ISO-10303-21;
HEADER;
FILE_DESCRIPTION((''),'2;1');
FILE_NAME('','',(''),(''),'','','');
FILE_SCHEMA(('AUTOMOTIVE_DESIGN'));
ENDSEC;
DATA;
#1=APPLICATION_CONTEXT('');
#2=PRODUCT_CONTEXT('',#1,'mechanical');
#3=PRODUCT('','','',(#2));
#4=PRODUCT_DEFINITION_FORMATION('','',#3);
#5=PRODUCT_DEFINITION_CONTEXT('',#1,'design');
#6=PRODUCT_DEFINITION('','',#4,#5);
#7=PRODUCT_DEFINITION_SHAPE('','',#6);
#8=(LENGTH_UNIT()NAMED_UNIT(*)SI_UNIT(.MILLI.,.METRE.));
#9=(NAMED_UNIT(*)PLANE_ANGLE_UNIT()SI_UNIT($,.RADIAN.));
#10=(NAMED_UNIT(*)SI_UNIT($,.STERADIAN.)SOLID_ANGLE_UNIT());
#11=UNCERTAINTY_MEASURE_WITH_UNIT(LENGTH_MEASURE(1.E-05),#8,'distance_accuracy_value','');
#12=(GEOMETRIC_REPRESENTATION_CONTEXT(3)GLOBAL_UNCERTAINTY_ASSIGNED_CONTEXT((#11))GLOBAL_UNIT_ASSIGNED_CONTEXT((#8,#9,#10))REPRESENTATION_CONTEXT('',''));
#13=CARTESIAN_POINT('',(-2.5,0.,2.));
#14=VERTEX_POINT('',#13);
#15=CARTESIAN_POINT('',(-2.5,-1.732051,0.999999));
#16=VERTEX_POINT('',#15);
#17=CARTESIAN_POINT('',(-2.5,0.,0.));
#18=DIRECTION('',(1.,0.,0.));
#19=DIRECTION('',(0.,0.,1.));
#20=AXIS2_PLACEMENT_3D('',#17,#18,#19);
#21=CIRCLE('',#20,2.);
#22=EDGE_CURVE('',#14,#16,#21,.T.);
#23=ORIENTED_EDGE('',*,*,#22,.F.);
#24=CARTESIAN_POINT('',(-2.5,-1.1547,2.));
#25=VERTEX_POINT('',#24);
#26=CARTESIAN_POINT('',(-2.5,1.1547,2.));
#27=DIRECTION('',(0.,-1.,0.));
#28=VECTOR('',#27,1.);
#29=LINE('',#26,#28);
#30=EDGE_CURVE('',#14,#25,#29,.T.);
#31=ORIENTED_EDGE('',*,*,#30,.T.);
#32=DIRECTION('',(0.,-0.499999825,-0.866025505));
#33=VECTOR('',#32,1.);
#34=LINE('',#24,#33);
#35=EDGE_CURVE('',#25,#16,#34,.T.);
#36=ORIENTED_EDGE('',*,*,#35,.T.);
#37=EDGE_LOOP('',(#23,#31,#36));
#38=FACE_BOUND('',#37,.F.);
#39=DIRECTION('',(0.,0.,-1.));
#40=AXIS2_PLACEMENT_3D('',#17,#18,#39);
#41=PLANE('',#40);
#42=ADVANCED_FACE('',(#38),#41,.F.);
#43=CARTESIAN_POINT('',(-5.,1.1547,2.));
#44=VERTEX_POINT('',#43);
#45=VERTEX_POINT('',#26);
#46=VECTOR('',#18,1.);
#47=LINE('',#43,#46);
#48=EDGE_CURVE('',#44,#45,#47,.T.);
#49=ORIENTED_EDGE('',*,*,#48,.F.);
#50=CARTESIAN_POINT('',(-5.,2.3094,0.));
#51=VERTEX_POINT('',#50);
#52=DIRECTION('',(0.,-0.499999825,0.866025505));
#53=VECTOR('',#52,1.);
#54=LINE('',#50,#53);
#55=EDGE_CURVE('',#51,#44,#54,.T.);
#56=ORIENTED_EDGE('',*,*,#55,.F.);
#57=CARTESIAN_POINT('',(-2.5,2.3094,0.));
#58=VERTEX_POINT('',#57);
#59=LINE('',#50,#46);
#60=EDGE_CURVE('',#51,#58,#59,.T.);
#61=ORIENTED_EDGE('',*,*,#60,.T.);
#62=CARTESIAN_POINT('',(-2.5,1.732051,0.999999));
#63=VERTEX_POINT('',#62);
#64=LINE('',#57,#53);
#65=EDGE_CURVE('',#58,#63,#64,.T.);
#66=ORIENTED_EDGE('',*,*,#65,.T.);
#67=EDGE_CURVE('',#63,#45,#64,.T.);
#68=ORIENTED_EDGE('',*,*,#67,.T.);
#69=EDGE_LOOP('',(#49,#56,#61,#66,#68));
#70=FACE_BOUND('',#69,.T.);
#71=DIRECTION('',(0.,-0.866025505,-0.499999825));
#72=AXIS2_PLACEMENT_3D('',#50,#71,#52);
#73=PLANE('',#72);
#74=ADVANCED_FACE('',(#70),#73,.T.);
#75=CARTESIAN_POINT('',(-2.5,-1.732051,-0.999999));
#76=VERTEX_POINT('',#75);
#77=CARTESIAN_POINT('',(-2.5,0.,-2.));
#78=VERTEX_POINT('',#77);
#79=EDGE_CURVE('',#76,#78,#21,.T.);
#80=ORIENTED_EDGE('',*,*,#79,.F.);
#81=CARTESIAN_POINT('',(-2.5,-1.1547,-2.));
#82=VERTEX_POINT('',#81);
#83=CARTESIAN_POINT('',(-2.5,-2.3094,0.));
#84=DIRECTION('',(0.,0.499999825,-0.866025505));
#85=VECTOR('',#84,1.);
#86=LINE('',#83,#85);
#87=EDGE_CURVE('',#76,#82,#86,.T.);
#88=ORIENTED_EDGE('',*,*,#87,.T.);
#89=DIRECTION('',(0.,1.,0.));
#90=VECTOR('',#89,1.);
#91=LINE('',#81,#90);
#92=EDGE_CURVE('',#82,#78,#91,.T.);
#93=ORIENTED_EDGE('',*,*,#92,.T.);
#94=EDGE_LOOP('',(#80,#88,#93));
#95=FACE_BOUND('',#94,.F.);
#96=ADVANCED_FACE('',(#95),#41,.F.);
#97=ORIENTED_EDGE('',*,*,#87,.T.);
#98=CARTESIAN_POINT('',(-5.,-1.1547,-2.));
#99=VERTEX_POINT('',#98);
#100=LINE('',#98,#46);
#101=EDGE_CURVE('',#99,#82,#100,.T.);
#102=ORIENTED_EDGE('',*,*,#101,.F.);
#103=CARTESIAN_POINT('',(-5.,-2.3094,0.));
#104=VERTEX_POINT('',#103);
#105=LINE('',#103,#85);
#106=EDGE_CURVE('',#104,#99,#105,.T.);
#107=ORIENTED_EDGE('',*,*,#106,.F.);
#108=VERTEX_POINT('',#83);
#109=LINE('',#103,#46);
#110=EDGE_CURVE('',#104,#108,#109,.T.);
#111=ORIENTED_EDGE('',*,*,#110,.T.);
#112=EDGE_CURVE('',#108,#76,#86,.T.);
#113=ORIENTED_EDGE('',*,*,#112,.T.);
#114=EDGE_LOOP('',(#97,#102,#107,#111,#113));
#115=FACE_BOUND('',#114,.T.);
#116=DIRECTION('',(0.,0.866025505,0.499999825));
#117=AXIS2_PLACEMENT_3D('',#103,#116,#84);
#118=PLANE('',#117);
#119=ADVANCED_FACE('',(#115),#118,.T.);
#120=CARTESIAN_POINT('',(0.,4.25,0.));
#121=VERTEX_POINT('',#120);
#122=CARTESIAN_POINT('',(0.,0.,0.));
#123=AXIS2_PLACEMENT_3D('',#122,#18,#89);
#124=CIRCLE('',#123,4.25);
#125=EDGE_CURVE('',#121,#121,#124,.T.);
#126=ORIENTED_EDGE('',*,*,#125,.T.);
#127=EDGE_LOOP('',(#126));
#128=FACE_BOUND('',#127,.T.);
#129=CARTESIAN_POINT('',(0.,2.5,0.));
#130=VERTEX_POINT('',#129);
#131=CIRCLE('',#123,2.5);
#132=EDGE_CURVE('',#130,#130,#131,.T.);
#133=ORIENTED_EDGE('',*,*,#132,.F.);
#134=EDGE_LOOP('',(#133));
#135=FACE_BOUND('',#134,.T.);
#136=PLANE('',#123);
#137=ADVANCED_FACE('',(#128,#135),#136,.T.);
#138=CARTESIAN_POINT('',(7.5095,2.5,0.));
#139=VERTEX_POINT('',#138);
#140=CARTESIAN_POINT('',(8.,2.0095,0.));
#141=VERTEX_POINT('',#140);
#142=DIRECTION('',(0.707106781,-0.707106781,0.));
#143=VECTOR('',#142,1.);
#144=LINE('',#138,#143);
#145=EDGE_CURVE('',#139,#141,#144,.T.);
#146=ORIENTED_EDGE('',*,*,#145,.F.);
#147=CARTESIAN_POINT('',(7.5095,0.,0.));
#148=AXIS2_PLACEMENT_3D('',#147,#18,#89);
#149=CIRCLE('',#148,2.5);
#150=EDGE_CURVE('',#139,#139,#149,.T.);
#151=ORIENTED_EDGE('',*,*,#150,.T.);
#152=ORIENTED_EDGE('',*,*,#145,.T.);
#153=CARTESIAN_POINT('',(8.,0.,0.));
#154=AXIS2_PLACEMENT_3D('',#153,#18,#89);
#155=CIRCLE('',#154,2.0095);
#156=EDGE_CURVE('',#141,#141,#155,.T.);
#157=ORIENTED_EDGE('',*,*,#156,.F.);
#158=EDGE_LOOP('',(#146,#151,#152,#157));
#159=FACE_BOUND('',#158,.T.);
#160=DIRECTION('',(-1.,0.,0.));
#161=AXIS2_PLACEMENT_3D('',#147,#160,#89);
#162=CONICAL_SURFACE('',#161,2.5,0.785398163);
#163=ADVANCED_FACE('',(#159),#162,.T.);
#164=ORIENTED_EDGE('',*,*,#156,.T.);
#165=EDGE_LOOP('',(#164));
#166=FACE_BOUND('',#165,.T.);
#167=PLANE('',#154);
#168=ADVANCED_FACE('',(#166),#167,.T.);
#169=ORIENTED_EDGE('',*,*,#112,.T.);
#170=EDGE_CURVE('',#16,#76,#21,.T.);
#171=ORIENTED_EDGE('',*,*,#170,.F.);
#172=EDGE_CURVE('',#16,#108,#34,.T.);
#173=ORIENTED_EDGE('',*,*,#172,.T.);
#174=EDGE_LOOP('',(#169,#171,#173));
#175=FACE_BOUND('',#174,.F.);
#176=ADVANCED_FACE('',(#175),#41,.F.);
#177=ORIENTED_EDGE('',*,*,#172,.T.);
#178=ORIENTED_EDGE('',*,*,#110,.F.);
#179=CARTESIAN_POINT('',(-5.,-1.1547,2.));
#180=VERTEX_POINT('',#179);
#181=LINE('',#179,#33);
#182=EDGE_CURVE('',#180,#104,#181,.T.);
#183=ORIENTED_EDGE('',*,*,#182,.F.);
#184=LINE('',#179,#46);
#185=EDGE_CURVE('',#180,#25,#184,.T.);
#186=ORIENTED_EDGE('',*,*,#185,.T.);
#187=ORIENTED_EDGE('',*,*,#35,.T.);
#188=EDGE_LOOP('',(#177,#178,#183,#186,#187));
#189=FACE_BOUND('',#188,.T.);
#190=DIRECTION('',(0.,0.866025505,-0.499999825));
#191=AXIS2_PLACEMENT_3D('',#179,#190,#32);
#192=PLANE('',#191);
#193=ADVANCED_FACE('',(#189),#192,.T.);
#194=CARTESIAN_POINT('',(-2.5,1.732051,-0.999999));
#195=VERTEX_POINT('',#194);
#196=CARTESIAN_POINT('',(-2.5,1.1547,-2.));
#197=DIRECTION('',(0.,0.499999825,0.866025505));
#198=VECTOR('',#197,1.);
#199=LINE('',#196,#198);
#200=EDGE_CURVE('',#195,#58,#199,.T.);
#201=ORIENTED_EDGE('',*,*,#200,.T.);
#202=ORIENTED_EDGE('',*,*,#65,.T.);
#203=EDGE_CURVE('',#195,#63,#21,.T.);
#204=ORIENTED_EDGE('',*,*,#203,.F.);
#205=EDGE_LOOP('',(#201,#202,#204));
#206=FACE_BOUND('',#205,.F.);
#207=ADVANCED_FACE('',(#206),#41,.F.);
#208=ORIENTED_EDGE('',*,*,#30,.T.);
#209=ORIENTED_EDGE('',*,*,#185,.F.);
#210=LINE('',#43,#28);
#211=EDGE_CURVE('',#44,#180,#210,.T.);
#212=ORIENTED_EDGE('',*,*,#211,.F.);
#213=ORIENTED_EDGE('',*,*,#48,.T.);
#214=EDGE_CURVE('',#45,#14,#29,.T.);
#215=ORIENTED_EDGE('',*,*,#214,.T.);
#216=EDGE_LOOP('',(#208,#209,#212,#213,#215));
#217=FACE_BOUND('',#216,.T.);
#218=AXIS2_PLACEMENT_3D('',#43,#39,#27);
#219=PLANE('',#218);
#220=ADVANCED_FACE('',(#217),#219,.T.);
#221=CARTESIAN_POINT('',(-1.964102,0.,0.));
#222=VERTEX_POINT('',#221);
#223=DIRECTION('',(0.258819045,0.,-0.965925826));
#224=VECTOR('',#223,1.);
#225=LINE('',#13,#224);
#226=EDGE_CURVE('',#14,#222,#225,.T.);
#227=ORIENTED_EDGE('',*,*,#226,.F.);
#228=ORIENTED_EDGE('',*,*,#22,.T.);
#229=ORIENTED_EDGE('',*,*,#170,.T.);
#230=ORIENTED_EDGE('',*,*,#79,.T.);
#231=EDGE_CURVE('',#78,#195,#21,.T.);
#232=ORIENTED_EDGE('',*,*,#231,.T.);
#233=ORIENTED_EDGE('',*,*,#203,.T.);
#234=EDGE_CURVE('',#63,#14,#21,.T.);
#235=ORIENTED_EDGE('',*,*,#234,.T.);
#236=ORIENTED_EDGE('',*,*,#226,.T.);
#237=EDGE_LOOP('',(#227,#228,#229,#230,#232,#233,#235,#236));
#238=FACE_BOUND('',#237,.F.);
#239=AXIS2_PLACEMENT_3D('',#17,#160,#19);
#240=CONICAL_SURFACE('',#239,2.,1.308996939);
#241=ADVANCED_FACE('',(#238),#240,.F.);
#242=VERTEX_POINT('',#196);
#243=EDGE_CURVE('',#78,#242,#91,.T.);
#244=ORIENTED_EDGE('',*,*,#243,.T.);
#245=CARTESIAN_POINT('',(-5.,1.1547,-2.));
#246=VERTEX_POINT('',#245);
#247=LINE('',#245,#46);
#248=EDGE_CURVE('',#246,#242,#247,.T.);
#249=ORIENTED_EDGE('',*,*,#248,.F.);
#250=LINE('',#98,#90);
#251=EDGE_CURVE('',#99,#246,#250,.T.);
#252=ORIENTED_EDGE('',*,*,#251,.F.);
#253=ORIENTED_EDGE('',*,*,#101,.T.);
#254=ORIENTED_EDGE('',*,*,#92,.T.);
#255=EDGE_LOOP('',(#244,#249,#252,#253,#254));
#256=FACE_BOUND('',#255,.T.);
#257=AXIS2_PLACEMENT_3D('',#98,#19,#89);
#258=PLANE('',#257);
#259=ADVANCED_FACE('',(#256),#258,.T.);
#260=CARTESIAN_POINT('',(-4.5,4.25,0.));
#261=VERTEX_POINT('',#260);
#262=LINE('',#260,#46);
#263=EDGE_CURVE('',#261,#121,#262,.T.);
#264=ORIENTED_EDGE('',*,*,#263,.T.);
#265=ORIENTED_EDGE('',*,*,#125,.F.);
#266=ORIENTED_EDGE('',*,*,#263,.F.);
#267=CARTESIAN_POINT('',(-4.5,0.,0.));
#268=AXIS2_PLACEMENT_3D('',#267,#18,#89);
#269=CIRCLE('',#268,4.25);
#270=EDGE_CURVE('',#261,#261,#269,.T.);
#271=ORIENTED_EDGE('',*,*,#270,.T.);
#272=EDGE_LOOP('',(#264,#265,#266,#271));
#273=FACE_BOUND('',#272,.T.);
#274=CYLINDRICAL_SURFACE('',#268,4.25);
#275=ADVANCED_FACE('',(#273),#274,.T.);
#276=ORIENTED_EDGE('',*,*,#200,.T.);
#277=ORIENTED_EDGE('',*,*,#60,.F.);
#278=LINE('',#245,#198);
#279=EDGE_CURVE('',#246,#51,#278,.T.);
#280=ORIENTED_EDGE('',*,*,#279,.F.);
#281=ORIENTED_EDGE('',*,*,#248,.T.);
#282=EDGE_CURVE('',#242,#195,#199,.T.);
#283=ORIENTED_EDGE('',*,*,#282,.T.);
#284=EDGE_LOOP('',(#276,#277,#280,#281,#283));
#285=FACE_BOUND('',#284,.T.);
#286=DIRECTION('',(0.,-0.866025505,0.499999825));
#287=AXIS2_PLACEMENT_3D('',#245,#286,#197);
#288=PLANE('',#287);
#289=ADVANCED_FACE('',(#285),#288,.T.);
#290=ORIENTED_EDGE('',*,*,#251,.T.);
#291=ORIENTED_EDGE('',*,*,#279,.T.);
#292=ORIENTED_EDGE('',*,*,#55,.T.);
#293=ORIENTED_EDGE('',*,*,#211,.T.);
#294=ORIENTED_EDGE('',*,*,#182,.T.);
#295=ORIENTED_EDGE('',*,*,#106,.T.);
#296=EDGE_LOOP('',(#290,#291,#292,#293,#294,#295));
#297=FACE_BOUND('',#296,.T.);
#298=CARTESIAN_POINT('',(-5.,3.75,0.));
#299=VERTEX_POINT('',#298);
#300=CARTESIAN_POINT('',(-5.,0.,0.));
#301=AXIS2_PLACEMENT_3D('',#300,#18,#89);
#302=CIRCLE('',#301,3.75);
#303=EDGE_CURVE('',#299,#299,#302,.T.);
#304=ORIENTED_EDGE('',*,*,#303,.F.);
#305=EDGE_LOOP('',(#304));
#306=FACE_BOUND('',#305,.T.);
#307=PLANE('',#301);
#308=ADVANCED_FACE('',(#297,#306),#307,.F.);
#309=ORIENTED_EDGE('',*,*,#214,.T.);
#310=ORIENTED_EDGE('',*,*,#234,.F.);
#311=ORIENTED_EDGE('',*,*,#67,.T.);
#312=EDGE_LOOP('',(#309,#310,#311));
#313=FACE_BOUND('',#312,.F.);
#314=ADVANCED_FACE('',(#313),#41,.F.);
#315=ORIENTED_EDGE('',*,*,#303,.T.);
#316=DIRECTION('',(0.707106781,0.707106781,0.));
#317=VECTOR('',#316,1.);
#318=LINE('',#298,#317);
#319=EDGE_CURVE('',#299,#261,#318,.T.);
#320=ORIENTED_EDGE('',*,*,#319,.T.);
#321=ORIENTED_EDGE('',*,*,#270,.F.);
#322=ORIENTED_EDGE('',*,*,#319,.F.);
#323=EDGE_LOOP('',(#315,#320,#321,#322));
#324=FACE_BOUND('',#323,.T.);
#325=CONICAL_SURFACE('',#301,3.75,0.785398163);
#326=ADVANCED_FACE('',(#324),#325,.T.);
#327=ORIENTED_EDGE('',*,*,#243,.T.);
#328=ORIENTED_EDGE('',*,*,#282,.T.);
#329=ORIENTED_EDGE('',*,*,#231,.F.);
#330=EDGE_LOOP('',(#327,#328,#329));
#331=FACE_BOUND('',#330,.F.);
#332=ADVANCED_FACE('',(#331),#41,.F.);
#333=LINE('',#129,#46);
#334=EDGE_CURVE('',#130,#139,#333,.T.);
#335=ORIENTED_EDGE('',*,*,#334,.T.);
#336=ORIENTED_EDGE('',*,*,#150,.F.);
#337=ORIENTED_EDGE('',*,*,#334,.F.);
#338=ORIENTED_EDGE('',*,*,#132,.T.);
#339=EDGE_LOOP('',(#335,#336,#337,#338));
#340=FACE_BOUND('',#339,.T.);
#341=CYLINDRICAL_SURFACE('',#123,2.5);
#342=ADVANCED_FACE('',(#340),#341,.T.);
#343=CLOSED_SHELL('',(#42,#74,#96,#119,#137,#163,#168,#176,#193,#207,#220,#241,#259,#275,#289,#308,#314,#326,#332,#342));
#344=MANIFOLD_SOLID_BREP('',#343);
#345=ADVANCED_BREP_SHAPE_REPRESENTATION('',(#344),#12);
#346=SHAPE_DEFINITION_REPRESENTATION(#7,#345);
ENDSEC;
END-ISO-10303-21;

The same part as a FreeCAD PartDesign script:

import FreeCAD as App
import Part
import Sketcher
Q = App.Units.Quantity

doc = App.newDocument("Part")
body = doc.addObject("PartDesign::Body", "Body")

# Sketch on XY plane
sketch1 = body.newObject("Sketcher::SketchObject", "Sketch")
sketch1.AttachmentSupport = (doc.getObject("XY_Plane"), [""])
sketch1.MapMode = "FlatFace"
sketch1.addGeometry([
    Part.LineSegment(App.Vector(-5, 0, 0), App.Vector(8, 0, 0)),  # 0
    Part.LineSegment(App.Vector(8, 0, 0), App.Vector(8, 2.0095, 0)),  # 1
    Part.LineSegment(App.Vector(8, 2.0095, 0), App.Vector(7.5095, 2.5, 0)),  # 2
    Part.LineSegment(App.Vector(7.5095, 2.5, 0), App.Vector(0, 2.5, 0)),  # 3
    Part.LineSegment(App.Vector(0, 2.5, 0), App.Vector(0, 4.25, 0)),  # 4
    Part.LineSegment(App.Vector(0, 4.25, 0), App.Vector(-4.5, 4.25, 0)),  # 5
    Part.LineSegment(App.Vector(-4.5, 4.25, 0), App.Vector(-5, 3.75, 0)),  # 6
    Part.LineSegment(App.Vector(-5, 3.75, 0), App.Vector(-5, 0, 0)),  # 7
], False)
sketch1.addConstraint([
    Sketcher.Constraint("Coincident", 0, 2, 1, 1),
    Sketcher.Constraint("Coincident", 1, 2, 2, 1),
    Sketcher.Constraint("Coincident", 2, 2, 3, 1),
    Sketcher.Constraint("Coincident", 3, 2, 4, 1),
    Sketcher.Constraint("Coincident", 4, 2, 5, 1),
    Sketcher.Constraint("Coincident", 5, 2, 6, 1),
    Sketcher.Constraint("Coincident", 6, 2, 7, 1),
    Sketcher.Constraint("Coincident", 7, 2, 0, 1),
    Sketcher.Constraint("Horizontal", 0),
    Sketcher.Constraint("Vertical", 1),
    Sketcher.Constraint("Horizontal", 3),
    Sketcher.Constraint("Vertical", 4),
    Sketcher.Constraint("Horizontal", 5),
    Sketcher.Constraint("Vertical", 7),
    Sketcher.Constraint("PointOnObject", 0, 2, -1),
    Sketcher.Constraint("PointOnObject", 3, 2, -2),
    Sketcher.Constraint("Perpendicular", 2, 6),
    Sketcher.Constraint("DistanceX", 0, 1, 0, 2, Q("13 mm")),
    Sketcher.Constraint("Angle", 2, Q("135 deg")),
    Sketcher.Constraint("DistanceX", 5, 2, 5, 1, Q("4.5 mm")),
    Sketcher.Constraint("DistanceX", -1, 1, 0, 2, Q("8 mm")),
    Sketcher.Constraint("DistanceY", 4, 1, 4, 2, Q("1.75 mm")),
    Sketcher.Constraint("DistanceY", 7, 2, 7, 1, Q("3.75 mm")),
    Sketcher.Constraint("DistanceX", 3, 2, 3, 1, Q("7.5095 mm")),
])
revolution = body.newObject("PartDesign::Revolution", "Revolution")
revolution.Profile = sketch1
revolution.ReferenceAxis = (sketch1, ["H_Axis"])
revolution.Angle = 360

# Sketch on YZ plane
sketch2 = body.newObject("Sketcher::SketchObject", "Sketch001")
sketch2.AttachmentSupport = (doc.getObject("YZ_Plane"), [""])
sketch2.MapMode = "FlatFace"
sketch2.AttachmentOffset = App.Placement(App.Vector(0, 0, -5), App.Rotation())
sketch2.addGeometry(Part.Circle(App.Vector(0, 0, 0), App.Vector(0, 0, 1), 2), False)
sketch2.addConstraint([
    Sketcher.Constraint("Coincident", 0, 3, -1, 1),
    Sketcher.Constraint("Diameter", 0, Q("4 mm")),
])
doc.recompute()
hole = body.newObject("PartDesign::Hole", "Hole")
hole.Profile = sketch2
hole.ThreadType = "None"
hole.Diameter = 4
hole.DepthType = "Dimension"
hole.Depth = 2.5
hole.DrillPoint = "Angled"
hole.DrillPointAngle = 150
hole.Reversed = True

# Sketch on YZ plane
sketch3 = body.newObject("Sketcher::SketchObject", "Sketch002")
sketch3.AttachmentSupport = (doc.getObject("YZ_Plane"), [""])
sketch3.MapMode = "FlatFace"
sketch3.AttachmentOffset = App.Placement(App.Vector(0, 0, -5), App.Rotation())
sketch3.addGeometry([
    Part.LineSegment(App.Vector(1.1547, 2, 0), App.Vector(-1.1547, 2, 0)),  # 0
    Part.LineSegment(App.Vector(-1.1547, 2, 0), App.Vector(-2.3094, 0, 0)),  # 1
    Part.LineSegment(App.Vector(-2.3094, 0, 0), App.Vector(-1.1547, -2, 0)),  # 2
    Part.LineSegment(App.Vector(-1.1547, -2, 0), App.Vector(1.1547, -2, 0)),  # 3
    Part.LineSegment(App.Vector(1.1547, -2, 0), App.Vector(2.3094, 0, 0)),  # 4
    Part.LineSegment(App.Vector(2.3094, 0, 0), App.Vector(1.1547, 2, 0)),  # 5
], False)
sketch3.addConstraint([
    Sketcher.Constraint("Coincident", 0, 2, 1, 1),
    Sketcher.Constraint("Coincident", 1, 2, 2, 1),
    Sketcher.Constraint("Coincident", 2, 2, 3, 1),
    Sketcher.Constraint("Coincident", 3, 2, 4, 1),
    Sketcher.Constraint("Coincident", 4, 2, 5, 1),
    Sketcher.Constraint("Coincident", 5, 2, 0, 1),
    Sketcher.Constraint("Horizontal", 0),
    Sketcher.Constraint("Horizontal", 3),
    Sketcher.Constraint("Symmetric", 0, 2, 3, 2, -1, 1),
    Sketcher.Constraint("Symmetric", 1, 2, 4, 2, -1, 1),
    Sketcher.Constraint("PointOnObject", 1, 2, -1),
    Sketcher.Constraint("Parallel", 2, 5),
    Sketcher.Constraint("Vertical", 0, 2, 2, 2),
    Sketcher.Constraint("Angle", 1, Q("-120 deg")),
    Sketcher.Constraint("DistanceY", -1, 1, 0, 2, Q("2 mm")),
    Sketcher.Constraint("DistanceX", 0, 2, 0, 1, Q("2.3094 mm")),
])
pocket1 = body.newObject("PartDesign::Pocket", "Pocket")
pocket1.Profile = sketch3
pocket1.Length = 2.5
pocket1.Reversed = True

doc.recompute()
